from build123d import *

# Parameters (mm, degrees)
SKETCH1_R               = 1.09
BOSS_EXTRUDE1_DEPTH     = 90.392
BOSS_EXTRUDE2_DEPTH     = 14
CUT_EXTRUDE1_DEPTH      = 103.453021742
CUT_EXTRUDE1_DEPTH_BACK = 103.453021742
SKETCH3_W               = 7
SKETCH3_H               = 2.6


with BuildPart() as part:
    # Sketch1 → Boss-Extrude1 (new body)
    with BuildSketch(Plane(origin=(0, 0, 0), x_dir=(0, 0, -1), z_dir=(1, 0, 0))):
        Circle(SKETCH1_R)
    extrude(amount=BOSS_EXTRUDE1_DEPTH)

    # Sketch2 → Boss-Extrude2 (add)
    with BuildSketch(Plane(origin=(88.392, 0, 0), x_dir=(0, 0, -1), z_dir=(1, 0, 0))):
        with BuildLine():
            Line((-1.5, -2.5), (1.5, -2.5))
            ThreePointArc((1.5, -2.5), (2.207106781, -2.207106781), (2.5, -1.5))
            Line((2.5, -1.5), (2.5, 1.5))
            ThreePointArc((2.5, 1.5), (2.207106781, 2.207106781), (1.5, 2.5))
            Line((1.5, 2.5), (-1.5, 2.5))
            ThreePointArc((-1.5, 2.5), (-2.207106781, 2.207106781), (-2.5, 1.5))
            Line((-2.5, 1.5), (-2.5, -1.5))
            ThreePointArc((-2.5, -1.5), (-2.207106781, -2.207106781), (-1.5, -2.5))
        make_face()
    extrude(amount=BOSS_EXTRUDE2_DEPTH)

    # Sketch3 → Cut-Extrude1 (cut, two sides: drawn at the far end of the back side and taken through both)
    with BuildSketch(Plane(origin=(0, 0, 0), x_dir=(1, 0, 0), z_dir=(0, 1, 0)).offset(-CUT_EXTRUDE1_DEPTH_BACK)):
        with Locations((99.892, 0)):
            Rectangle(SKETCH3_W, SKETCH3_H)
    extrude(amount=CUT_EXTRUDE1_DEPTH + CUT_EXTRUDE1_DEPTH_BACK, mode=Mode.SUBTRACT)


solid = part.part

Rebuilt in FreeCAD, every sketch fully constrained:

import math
import FreeCAD as App
import Part
import Sketcher
from FreeCAD import Vector
Q = App.Units.Quantity

doc = App.newDocument("Part")
body = doc.addObject("PartDesign::Body", "Body")

sketch1 = body.newObject("Sketcher::SketchObject", "Sketch")
sketch1.AttachmentSupport = (doc.getObject("YZ_Plane"), [""])
sketch1.MapMode = "FlatFace"
sketch1.addGeometry(Part.Circle(Vector(0, 0, 0), Vector(0, 0, 1), 1.1), False)
sketch1.addConstraint(Sketcher.Constraint("Coincident", 0, 3, -1, 1))
sketch1.addConstraint(Sketcher.Constraint("Diameter", 0, Q("2.18 mm")))
pad1 = body.newObject("PartDesign::Pad", "Pad")
pad1.Profile = sketch1
pad1.Length = 90.392

sketch2 = body.newObject("Sketcher::SketchObject", "Sketch001")
sketch2.AttachmentSupport = (doc.getObject("YZ_Plane"), [""])
sketch2.MapMode = "FlatFace"
sketch2.AttachmentOffset = App.Placement(Vector(0, 0, 88.392), App.Rotation())
sketch2.addGeometry(Part.LineSegment(Vector(-2.5, 1.5, 0), Vector(-2.5, -1.5, 0)), False)
sketch2.addGeometry(Part.ArcOfCircle(Part.Circle(Vector(-1.5, -1.5, 0), Vector(0, 0, 1), 1), math.radians(-180), math.radians(-90)), False)
sketch2.addGeometry(Part.LineSegment(Vector(-1.5, -2.5, 0), Vector(1.5, -2.5, 0)), False)
sketch2.addGeometry(Part.ArcOfCircle(Part.Circle(Vector(1.5, -1.5, 0), Vector(0, 0, 1), 1), math.radians(-90), math.radians(0)), False)
sketch2.addGeometry(Part.LineSegment(Vector(2.5, -1.5, 0), Vector(2.5, 1.5, 0)), False)
sketch2.addGeometry(Part.ArcOfCircle(Part.Circle(Vector(1.5, 1.5, 0), Vector(0, 0, 1), 1), math.radians(0), math.radians(90)), False)
sketch2.addGeometry(Part.LineSegment(Vector(1.5, 2.5, 0), Vector(-1.5, 2.5, 0)), False)
sketch2.addGeometry(Part.ArcOfCircle(Part.Circle(Vector(-1.5, 1.5, 0), Vector(0, 0, 1), 1), math.radians(90), math.radians(180)), False)
sketch2.addConstraint(Sketcher.Constraint("Tangent", 0, 2, 1, 1))
sketch2.addConstraint(Sketcher.Constraint("Tangent", 1, 2, 2, 1))
sketch2.addConstraint(Sketcher.Constraint("Tangent", 2, 2, 3, 1))
sketch2.addConstraint(Sketcher.Constraint("Tangent", 3, 2, 4, 1))
sketch2.addConstraint(Sketcher.Constraint("Tangent", 4, 2, 5, 1))
sketch2.addConstraint(Sketcher.Constraint("Tangent", 5, 2, 6, 1))
sketch2.addConstraint(Sketcher.Constraint("Tangent", 6, 2, 7, 1))
sketch2.addConstraint(Sketcher.Constraint("Tangent", 7, 2, 0, 1))
sketch2.addConstraint(Sketcher.Constraint("Vertical", 0))
sketch2.addConstraint(Sketcher.Constraint("Horizontal", 2))
sketch2.addConstraint(Sketcher.Constraint("Vertical", 4))
sketch2.addConstraint(Sketcher.Constraint("Horizontal", 6))
sketch2.addConstraint(Sketcher.Constraint("Equal", 1, 3))
sketch2.addConstraint(Sketcher.Constraint("Equal", 3, 5))
sketch2.addConstraint(Sketcher.Constraint("Equal", 5, 7))
sketch2.addConstraint(Sketcher.Constraint("Symmetric", 1, 3, 5, 3, -1, 1))
sketch2.addConstraint(Sketcher.Constraint("Equal", 6, 0))
sketch2.addConstraint(Sketcher.Constraint("Radius", 1, Q("1 mm")))
sketch2.addConstraint(Sketcher.Constraint("DistanceX", 2, 1, 2, 2, Q("3 mm")))
pad2 = body.newObject("PartDesign::Pad", "Pad001")
pad2.Profile = sketch2
pad2.Length = 14

sketch3 = body.newObject("Sketcher::SketchObject", "Sketch002")
sketch3.AttachmentSupport = (doc.getObject("XZ_Plane"), [""])
sketch3.MapMode = "FlatFace"
sketch3.addGeometry(Part.LineSegment(Vector(96.4, -1.3, 0), Vector(96.4, 1.3, 0)), False)
sketch3.addGeometry(Part.LineSegment(Vector(96.4, 1.3, 0), Vector(103.4, 1.3, 0)), False)
sketch3.addGeometry(Part.LineSegment(Vector(103.4, 1.3, 0), Vector(103.4, -1.3, 0)), False)
sketch3.addGeometry(Part.LineSegment(Vector(103.4, -1.3, 0), Vector(96.4, -1.3, 0)), False)
sketch3.addConstraint(Sketcher.Constraint("Coincident", 0, 2, 1, 1))
sketch3.addConstraint(Sketcher.Constraint("Coincident", 1, 2, 2, 1))
sketch3.addConstraint(Sketcher.Constraint("Coincident", 2, 2, 3, 1))
sketch3.addConstraint(Sketcher.Constraint("Coincident", 3, 2, 0, 1))
sketch3.addConstraint(Sketcher.Constraint("Vertical", 0))
sketch3.addConstraint(Sketcher.Constraint("Horizontal", 1))
sketch3.addConstraint(Sketcher.Constraint("Vertical", 2))
sketch3.addConstraint(Sketcher.Constraint("Horizontal", 3))
sketch3.addConstraint(Sketcher.Constraint("DistanceX", 1, 1, 1, 2, Q("7 mm")))
sketch3.addConstraint(Sketcher.Constraint("DistanceY", 0, 1, 0, 2, Q("2.6 mm")))
sketch3.addConstraint(Sketcher.Constraint("DistanceY", -1, 1, 0, 2, Q("1.3 mm")))
sketch3.addConstraint(Sketcher.Constraint("DistanceX", -1, 1, 0, 2, Q("96.392 mm")))
pocket1 = body.newObject("PartDesign::Pocket", "Pocket")
pocket1.Profile = sketch3
pocket1.Type = "ThroughAll"
pocket1.Midplane = True

doc.recompute()
